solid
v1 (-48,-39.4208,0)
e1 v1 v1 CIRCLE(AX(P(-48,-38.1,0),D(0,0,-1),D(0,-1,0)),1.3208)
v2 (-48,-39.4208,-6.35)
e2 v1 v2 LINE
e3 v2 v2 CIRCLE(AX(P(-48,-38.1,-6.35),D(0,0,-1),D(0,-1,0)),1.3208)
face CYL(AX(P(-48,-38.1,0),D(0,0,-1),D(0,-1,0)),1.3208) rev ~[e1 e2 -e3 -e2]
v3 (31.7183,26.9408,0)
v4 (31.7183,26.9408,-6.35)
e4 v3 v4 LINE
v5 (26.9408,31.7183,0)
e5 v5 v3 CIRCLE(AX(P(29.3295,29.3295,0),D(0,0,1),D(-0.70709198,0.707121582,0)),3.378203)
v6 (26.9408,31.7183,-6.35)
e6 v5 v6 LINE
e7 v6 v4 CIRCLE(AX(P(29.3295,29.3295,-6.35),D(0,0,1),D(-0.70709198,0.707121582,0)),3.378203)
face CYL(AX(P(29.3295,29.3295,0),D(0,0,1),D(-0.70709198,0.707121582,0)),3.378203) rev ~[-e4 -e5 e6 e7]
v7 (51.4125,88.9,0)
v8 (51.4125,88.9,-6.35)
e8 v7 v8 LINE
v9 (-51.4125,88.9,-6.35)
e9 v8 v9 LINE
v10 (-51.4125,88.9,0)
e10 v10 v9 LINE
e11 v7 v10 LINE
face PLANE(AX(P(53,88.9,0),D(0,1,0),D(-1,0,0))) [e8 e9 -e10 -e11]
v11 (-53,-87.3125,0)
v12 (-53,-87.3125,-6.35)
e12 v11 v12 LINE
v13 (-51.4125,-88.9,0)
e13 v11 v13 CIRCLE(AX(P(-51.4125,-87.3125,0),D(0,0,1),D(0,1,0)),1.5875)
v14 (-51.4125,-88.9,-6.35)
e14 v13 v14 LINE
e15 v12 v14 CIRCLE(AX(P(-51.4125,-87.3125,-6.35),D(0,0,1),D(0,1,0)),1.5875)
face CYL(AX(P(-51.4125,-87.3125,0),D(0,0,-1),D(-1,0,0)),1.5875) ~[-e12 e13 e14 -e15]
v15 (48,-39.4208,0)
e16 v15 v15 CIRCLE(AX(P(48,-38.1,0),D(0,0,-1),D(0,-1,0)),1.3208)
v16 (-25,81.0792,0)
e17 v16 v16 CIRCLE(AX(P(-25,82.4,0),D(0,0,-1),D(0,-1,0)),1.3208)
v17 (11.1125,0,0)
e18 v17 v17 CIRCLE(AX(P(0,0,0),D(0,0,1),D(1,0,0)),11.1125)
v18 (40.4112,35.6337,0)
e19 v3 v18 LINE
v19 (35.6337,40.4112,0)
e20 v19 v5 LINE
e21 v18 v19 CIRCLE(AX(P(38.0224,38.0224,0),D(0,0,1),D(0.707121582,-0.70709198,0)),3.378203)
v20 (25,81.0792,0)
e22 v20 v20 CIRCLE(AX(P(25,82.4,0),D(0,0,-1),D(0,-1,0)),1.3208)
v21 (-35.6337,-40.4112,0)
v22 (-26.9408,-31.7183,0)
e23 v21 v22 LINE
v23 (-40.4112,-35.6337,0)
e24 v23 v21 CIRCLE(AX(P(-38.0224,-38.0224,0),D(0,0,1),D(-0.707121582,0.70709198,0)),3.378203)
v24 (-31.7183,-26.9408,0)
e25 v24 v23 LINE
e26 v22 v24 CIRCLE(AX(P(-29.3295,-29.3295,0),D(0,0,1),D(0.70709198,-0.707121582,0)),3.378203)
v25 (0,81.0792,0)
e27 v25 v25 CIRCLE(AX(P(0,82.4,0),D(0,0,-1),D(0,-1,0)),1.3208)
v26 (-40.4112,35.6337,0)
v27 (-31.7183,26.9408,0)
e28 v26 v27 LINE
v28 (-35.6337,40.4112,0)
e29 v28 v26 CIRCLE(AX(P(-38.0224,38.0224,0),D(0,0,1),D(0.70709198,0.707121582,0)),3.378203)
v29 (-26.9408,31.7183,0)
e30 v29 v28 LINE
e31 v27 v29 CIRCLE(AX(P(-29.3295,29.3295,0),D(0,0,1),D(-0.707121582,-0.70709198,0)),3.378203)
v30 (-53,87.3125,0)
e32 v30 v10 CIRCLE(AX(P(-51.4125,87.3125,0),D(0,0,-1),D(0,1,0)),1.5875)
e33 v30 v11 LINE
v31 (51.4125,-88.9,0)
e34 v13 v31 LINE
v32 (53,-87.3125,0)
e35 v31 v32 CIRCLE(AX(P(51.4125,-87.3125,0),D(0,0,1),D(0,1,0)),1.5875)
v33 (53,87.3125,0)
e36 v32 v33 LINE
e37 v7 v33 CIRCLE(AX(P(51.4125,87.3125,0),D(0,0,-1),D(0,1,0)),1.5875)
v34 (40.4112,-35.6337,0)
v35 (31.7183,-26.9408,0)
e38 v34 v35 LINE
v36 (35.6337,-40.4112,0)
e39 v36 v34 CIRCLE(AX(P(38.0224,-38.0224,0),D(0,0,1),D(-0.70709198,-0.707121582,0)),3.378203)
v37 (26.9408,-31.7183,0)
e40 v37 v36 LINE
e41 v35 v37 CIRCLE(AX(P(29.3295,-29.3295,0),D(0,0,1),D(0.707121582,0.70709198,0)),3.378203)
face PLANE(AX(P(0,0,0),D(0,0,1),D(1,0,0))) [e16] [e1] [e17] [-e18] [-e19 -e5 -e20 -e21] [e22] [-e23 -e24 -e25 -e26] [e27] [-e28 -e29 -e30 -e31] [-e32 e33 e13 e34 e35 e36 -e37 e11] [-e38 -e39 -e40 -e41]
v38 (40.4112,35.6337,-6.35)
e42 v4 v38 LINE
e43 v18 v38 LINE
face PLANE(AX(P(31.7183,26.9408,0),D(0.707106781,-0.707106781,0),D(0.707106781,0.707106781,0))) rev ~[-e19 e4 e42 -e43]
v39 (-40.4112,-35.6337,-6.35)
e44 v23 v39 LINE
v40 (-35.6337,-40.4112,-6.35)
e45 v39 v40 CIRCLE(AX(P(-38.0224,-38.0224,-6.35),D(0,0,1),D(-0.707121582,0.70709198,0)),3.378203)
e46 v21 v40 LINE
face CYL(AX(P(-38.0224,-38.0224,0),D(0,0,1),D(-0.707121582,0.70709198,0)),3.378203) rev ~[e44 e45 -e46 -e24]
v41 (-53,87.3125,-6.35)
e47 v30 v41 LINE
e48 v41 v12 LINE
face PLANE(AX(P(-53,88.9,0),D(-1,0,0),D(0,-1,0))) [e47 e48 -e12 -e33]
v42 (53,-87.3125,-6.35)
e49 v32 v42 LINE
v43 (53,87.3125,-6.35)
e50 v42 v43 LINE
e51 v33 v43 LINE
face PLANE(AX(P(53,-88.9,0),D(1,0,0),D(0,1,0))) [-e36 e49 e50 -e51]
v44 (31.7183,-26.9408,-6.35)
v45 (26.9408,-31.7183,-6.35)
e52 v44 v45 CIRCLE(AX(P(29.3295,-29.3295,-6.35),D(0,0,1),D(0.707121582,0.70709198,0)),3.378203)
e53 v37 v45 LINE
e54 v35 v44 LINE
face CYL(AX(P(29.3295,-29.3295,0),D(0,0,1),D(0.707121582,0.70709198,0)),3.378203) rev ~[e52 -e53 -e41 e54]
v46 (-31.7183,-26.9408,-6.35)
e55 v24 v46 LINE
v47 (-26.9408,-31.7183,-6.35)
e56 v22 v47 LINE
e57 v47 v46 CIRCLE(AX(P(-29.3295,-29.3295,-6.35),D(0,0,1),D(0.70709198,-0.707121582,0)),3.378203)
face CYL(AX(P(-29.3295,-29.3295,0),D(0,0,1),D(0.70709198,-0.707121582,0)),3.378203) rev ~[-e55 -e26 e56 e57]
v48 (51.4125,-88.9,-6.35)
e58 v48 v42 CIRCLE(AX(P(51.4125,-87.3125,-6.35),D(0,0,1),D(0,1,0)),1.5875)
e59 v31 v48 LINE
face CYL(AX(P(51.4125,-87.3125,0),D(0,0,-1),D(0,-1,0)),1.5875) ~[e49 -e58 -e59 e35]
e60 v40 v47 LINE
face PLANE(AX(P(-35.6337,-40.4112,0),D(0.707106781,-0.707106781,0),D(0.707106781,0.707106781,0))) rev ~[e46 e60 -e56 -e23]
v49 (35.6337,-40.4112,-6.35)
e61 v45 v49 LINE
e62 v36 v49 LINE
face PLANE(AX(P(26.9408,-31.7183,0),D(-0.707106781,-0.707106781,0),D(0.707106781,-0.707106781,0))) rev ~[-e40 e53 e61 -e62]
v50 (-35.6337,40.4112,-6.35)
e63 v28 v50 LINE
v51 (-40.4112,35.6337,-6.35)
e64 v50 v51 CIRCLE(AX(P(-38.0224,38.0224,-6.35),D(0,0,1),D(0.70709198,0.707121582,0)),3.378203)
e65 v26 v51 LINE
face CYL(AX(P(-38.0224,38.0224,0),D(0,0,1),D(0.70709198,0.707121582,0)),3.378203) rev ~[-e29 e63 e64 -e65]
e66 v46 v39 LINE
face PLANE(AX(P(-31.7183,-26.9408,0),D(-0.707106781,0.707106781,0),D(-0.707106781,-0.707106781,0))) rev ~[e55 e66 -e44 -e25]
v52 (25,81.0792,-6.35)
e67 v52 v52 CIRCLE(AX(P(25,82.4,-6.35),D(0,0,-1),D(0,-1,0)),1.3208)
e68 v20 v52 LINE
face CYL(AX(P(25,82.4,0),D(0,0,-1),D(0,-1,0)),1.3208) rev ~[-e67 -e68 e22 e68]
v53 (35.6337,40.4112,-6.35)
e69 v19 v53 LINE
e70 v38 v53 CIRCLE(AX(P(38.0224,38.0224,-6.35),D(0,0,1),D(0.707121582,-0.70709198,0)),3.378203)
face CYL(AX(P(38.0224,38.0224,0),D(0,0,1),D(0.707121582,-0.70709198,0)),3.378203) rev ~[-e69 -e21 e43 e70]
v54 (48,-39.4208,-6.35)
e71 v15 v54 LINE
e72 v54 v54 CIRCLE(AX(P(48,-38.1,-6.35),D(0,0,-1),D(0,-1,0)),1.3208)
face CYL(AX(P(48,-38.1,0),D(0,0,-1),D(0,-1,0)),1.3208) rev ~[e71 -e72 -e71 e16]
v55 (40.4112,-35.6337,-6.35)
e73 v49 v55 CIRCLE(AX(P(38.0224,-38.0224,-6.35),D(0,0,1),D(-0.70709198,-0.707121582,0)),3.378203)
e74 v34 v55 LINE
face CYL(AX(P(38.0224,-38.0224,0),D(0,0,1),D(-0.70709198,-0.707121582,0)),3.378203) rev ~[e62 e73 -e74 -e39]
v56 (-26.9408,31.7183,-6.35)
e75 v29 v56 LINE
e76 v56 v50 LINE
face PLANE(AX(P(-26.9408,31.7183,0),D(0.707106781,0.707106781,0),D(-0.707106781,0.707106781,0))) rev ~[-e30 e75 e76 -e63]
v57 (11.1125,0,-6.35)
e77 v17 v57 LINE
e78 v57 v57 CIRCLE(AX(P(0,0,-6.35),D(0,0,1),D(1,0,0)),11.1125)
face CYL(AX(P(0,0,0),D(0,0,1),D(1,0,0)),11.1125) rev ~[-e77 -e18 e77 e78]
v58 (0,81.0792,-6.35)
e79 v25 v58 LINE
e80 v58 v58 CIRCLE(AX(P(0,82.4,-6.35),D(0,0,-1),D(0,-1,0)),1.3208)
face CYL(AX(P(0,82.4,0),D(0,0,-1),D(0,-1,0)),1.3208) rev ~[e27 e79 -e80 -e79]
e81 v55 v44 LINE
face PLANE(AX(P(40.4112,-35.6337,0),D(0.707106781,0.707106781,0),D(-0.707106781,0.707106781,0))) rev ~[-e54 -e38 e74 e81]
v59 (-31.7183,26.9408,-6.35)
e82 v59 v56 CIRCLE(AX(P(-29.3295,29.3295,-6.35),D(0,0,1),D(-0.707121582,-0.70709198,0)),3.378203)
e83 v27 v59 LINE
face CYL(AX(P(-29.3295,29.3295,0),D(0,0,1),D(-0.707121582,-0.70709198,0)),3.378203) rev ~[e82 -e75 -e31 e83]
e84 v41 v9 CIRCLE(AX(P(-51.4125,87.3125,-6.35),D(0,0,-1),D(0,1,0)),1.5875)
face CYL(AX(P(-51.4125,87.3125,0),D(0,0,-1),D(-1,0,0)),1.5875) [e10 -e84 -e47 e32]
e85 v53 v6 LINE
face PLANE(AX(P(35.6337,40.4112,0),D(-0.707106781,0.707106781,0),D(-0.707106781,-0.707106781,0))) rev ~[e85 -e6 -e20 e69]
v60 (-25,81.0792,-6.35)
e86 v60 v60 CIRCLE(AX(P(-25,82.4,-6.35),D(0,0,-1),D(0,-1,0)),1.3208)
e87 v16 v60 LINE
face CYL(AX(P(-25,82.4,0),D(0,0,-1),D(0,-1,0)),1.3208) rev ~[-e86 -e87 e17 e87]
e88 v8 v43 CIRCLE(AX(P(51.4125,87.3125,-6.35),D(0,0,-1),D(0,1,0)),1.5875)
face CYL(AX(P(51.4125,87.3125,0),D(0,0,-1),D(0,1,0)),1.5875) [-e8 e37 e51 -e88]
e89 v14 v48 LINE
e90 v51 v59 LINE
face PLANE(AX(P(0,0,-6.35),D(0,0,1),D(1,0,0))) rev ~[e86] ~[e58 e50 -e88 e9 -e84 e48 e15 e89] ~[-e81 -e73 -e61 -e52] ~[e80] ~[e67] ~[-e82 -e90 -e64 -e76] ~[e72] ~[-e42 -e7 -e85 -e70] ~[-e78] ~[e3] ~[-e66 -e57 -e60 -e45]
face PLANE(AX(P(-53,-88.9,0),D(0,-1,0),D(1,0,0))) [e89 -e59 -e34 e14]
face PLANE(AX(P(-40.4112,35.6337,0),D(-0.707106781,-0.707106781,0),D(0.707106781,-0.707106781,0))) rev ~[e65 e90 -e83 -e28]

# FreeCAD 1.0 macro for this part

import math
import FreeCAD as App
import Part
import Sketcher
Q = App.Units.Quantity


def edges_at(feature, points):
    """Names of the edges that pass closest to the given points."""
    edges = feature.Shape.Edges
    near = lambda p: min(range(len(edges)), key=lambda i: edges[i].distToShape(Part.Vertex(*p))[0])
    return sorted({f"Edge{near(p) + 1}" for p in points})

doc = App.newDocument("Part")
body = doc.addObject("PartDesign::Body", "Body")

sketch1 = doc.addObject("Sketcher::SketchObject", "Sketch")
body.addObject(sketch1)
sketch1.AttachmentSupport = (doc.XY_Plane, [""])
sketch1.MapMode = "FlatFace"
sketch1.addGeometry(Part.LineSegment(App.Vector(-53, 88.9, 0), App.Vector(-53, -88.9, 0)), False)
sketch1.addGeometry(Part.LineSegment(App.Vector(-53, -88.9, 0), App.Vector(53, -88.9, 0)), False)
sketch1.addGeometry(Part.LineSegment(App.Vector(53, -88.9, 0), App.Vector(53, 88.9, 0)), False)
sketch1.addGeometry(Part.LineSegment(App.Vector(53, 88.9, 0), App.Vector(-53, 88.9, 0)), False)
sketch1.addConstraint(Sketcher.Constraint("Coincident", 0, 2, 1, 1))
sketch1.addConstraint(Sketcher.Constraint("Coincident", 1, 2, 2, 1))
sketch1.addConstraint(Sketcher.Constraint("Coincident", 2, 2, 3, 1))
sketch1.addConstraint(Sketcher.Constraint("Coincident", 3, 2, 0, 1))
sketch1.addConstraint(Sketcher.Constraint("Vertical", 0))
sketch1.addConstraint(Sketcher.Constraint("Horizontal", 1))
sketch1.addConstraint(Sketcher.Constraint("Vertical", 2))
sketch1.addConstraint(Sketcher.Constraint("Horizontal", 3))
sketch1.addConstraint(Sketcher.Constraint("Symmetric", 0, 2, 2, 2, -1, 1))
sketch1.addConstraint(Sketcher.Constraint("DistanceY", 0, 2, 0, 1, Q("7 in")))
sketch1.addConstraint(Sketcher.Constraint("DistanceX", 1, 1, 1, 2, 106.0))
pad1 = doc.addObject("PartDesign::Pad", "Pad")
body.addObject(pad1)
pad1.Profile = sketch1
pad1.Length = Q("0.25 in")
pad1.Reversed = True

sketch2 = doc.addObject("Sketcher::SketchObject", "Sketch001")
body.addObject(sketch2)
sketch2.AttachmentSupport = (doc.XY_Plane, [""])
sketch2.MapMode = "FlatFace"
sketch2.addGeometry(Part.Circle(App.Vector(0, 0, 0), App.Vector(0, 0, 1), 11.1125), False)
sketch2.addConstraint(Sketcher.Constraint("Coincident", 0, 3, -1, 1))
sketch2.addConstraint(Sketcher.Constraint("Diameter", 0, Q("0.875 in")))
pocket1 = doc.addObject("PartDesign::Pocket", "Pocket")
body.addObject(pocket1)
pocket1.Profile = sketch2
pocket1.Type = "ThroughAll"

sketch3 = doc.addObject("Sketcher::SketchObject", "Sketch002")
body.addObject(sketch3)
sketch3.AttachmentSupport = (doc.XY_Plane, [""])
sketch3.MapMode = "FlatFace"
sketch3.addGeometry(Part.Circle(App.Vector(0, 82.4, 0), App.Vector(0, 0, 1), 1.3208), False)
sketch3.addGeometry(Part.Circle(App.Vector(123.3454, 23.3667, 0), App.Vector(0, 0, 1), 1.3208), False)
sketch3.addGeometry(Part.Circle(App.Vector(-25, 82.4, 0), App.Vector(0, 0, 1), 1.3208), False)
sketch3.addGeometry(Part.Circle(App.Vector(25, 82.4, 0), App.Vector(0, 0, 1), 1.3208), False)
sketch3.addConstraint(Sketcher.Constraint("Equal", 0, 1))
sketch3.addConstraint(Sketcher.Constraint("Equal", 1, 2))
sketch3.addConstraint(Sketcher.Constraint("Equal", 2, 3))
sketch3.addConstraint(Sketcher.Constraint("Symmetric", 2, 3, 3, 3, -2))
sketch3.addConstraint(Sketcher.Constraint("PointOnObject", 0, 3, -2))
sketch3.addConstraint(Sketcher.Constraint("Horizontal", 0, 3, 2, 3))
sketch3.addConstraint(Sketcher.Constraint("Diameter", 0, Q("0.104 in")))
sketch3.addConstraint(Sketcher.Constraint("DistanceY", -1, 1, 0, 3, Q("3.2441 in")))
sketch3.addConstraint(Sketcher.Constraint("DistanceX", 2, 3, 3, 3, Q("1.9685 in")))
sketch3.addConstraint(Sketcher.Constraint("DistanceX", -1, 1, 1, 3, 123.3454))
sketch3.addConstraint(Sketcher.Constraint("DistanceY", -1, 1, 1, 3, 23.3667))
doc.recompute()
hole = doc.addObject("PartDesign::Hole", "Hole")
body.addObject(hole)
hole.Profile = sketch3
hole.ThreadType = "None"
hole.Diameter = Q("0.104 in")
hole.DepthType = "ThroughAll"

sketch4 = doc.addObject("Sketcher::SketchObject", "Sketch003")
body.addObject(sketch4)
sketch4.AttachmentSupport = (doc.XY_Plane, [""])
sketch4.MapMode = "FlatFace"
sketch4.addGeometry(Part.Circle(App.Vector(-48, -38.1, 0), App.Vector(0, 0, 1), 1.3208), False)
sketch4.addGeometry(Part.Circle(App.Vector(48, -38.1, 0), App.Vector(0, 0, 1), 1.3208), False)
sketch4.addConstraint(Sketcher.Constraint("Equal", 0, 1))
sketch4.addConstraint(Sketcher.Constraint("Symmetric", 0, 3, 1, 3, -2))
sketch4.addConstraint(Sketcher.Constraint("Diameter", 0, Q("0.104 in")))
sketch4.addConstraint(Sketcher.Constraint("DistanceY", 0, 3, -1, 1, Q("1.5 in")))
sketch4.addConstraint(Sketcher.Constraint("DistanceX", 0, 3, -1, 1, 48.0))
doc.recompute()
hole2 = doc.addObject("PartDesign::Hole", "Hole001")
body.addObject(hole2)
hole2.Profile = sketch4
hole2.ThreadType = "None"
hole2.Diameter = Q("0.104 in")
hole2.DepthType = "ThroughAll"
doc.recompute()

fillet = doc.addObject("PartDesign::Fillet", "Fillet")
body.addObject(fillet)
fillet.Base = (hole2, edges_at(hole2, [
    (53, 88.9, -3.175),
    (-53, 88.9, -3.175),
    (53, -88.9, -3.175),
    (-53, -88.9, -3.175),
]))
fillet.Radius = Q("0.0625 in")

sketch5 = doc.addObject("Sketcher::SketchObject", "Sketch004")
body.addObject(sketch5)
sketch5.AttachmentSupport = (doc.XY_Plane, [""])
sketch5.MapMode = "FlatFace"
sketch5.addGeometry(Part.ArcOfCircle(Part.Circle(App.Vector(-38.0224, 38.0224, 0), App.Vector(0, 0, 1), 3.378203), math.radians(45.001199), math.radians(224.998801)), False)
sketch5.addGeometry(Part.LineSegment(App.Vector(-40.4112, 35.6337, 0), App.Vector(-31.7183, 26.9408, 0)), False)
sketch5.addGeometry(Part.ArcOfCircle(Part.Circle(App.Vector(-29.3295, 29.3295, 0), App.Vector(0, 0, 1), 3.378203), math.radians(-135.001199), math.radians(45.001199)), False)
sketch5.addGeometry(Part.LineSegment(App.Vector(-26.9408, 31.7183, 0), App.Vector(-35.6337, 40.4112, 0)), False)
sketch5.addConstraint(Sketcher.Constraint("Tangent", 0, 2, 1, 1))
sketch5.addConstraint(Sketcher.Constraint("Tangent", 1, 2, 2, 1))
sketch5.addConstraint(Sketcher.Constraint("Tangent", 2, 2, 3, 1))
sketch5.addConstraint(Sketcher.Constraint("Tangent", 3, 2, 0, 1))
sketch5.addConstraint(Sketcher.Constraint("Equal", 0, 2))
sketch5.addConstraint(Sketcher.Constraint("Angle", 1, Q("-45 deg")))
sketch5.addConstraint(Sketcher.Constraint("Radius", 0, Q("0.133 in")))
sketch5.addConstraint(Sketcher.Constraint("Distance", 1, Q("0.484 in")))
sketch5.addConstraint(Sketcher.Constraint("DistanceX", 0, 2, -1, 1, Q("1.591 in")))
sketch5.addConstraint(Sketcher.Constraint("DistanceY", -1, 1, 3, 2, Q("1.591 in")))
pocket2 = doc.addObject("PartDesign::Pocket", "Pocket001")
body.addObject(pocket2)
pocket2.Profile = sketch5
pocket2.Type = "ThroughAll"
doc.recompute()

polarpattern = doc.addObject("PartDesign::PolarPattern", "PolarPattern")
body.addObject(polarpattern)
polarpattern.Originals = [pocket2]
polarpattern.Axis = (doc.Z_Axis, [""])
polarpattern.Angle = 360
polarpattern.Occurrences = 4
body.Tip = polarpattern

doc.recompute()
